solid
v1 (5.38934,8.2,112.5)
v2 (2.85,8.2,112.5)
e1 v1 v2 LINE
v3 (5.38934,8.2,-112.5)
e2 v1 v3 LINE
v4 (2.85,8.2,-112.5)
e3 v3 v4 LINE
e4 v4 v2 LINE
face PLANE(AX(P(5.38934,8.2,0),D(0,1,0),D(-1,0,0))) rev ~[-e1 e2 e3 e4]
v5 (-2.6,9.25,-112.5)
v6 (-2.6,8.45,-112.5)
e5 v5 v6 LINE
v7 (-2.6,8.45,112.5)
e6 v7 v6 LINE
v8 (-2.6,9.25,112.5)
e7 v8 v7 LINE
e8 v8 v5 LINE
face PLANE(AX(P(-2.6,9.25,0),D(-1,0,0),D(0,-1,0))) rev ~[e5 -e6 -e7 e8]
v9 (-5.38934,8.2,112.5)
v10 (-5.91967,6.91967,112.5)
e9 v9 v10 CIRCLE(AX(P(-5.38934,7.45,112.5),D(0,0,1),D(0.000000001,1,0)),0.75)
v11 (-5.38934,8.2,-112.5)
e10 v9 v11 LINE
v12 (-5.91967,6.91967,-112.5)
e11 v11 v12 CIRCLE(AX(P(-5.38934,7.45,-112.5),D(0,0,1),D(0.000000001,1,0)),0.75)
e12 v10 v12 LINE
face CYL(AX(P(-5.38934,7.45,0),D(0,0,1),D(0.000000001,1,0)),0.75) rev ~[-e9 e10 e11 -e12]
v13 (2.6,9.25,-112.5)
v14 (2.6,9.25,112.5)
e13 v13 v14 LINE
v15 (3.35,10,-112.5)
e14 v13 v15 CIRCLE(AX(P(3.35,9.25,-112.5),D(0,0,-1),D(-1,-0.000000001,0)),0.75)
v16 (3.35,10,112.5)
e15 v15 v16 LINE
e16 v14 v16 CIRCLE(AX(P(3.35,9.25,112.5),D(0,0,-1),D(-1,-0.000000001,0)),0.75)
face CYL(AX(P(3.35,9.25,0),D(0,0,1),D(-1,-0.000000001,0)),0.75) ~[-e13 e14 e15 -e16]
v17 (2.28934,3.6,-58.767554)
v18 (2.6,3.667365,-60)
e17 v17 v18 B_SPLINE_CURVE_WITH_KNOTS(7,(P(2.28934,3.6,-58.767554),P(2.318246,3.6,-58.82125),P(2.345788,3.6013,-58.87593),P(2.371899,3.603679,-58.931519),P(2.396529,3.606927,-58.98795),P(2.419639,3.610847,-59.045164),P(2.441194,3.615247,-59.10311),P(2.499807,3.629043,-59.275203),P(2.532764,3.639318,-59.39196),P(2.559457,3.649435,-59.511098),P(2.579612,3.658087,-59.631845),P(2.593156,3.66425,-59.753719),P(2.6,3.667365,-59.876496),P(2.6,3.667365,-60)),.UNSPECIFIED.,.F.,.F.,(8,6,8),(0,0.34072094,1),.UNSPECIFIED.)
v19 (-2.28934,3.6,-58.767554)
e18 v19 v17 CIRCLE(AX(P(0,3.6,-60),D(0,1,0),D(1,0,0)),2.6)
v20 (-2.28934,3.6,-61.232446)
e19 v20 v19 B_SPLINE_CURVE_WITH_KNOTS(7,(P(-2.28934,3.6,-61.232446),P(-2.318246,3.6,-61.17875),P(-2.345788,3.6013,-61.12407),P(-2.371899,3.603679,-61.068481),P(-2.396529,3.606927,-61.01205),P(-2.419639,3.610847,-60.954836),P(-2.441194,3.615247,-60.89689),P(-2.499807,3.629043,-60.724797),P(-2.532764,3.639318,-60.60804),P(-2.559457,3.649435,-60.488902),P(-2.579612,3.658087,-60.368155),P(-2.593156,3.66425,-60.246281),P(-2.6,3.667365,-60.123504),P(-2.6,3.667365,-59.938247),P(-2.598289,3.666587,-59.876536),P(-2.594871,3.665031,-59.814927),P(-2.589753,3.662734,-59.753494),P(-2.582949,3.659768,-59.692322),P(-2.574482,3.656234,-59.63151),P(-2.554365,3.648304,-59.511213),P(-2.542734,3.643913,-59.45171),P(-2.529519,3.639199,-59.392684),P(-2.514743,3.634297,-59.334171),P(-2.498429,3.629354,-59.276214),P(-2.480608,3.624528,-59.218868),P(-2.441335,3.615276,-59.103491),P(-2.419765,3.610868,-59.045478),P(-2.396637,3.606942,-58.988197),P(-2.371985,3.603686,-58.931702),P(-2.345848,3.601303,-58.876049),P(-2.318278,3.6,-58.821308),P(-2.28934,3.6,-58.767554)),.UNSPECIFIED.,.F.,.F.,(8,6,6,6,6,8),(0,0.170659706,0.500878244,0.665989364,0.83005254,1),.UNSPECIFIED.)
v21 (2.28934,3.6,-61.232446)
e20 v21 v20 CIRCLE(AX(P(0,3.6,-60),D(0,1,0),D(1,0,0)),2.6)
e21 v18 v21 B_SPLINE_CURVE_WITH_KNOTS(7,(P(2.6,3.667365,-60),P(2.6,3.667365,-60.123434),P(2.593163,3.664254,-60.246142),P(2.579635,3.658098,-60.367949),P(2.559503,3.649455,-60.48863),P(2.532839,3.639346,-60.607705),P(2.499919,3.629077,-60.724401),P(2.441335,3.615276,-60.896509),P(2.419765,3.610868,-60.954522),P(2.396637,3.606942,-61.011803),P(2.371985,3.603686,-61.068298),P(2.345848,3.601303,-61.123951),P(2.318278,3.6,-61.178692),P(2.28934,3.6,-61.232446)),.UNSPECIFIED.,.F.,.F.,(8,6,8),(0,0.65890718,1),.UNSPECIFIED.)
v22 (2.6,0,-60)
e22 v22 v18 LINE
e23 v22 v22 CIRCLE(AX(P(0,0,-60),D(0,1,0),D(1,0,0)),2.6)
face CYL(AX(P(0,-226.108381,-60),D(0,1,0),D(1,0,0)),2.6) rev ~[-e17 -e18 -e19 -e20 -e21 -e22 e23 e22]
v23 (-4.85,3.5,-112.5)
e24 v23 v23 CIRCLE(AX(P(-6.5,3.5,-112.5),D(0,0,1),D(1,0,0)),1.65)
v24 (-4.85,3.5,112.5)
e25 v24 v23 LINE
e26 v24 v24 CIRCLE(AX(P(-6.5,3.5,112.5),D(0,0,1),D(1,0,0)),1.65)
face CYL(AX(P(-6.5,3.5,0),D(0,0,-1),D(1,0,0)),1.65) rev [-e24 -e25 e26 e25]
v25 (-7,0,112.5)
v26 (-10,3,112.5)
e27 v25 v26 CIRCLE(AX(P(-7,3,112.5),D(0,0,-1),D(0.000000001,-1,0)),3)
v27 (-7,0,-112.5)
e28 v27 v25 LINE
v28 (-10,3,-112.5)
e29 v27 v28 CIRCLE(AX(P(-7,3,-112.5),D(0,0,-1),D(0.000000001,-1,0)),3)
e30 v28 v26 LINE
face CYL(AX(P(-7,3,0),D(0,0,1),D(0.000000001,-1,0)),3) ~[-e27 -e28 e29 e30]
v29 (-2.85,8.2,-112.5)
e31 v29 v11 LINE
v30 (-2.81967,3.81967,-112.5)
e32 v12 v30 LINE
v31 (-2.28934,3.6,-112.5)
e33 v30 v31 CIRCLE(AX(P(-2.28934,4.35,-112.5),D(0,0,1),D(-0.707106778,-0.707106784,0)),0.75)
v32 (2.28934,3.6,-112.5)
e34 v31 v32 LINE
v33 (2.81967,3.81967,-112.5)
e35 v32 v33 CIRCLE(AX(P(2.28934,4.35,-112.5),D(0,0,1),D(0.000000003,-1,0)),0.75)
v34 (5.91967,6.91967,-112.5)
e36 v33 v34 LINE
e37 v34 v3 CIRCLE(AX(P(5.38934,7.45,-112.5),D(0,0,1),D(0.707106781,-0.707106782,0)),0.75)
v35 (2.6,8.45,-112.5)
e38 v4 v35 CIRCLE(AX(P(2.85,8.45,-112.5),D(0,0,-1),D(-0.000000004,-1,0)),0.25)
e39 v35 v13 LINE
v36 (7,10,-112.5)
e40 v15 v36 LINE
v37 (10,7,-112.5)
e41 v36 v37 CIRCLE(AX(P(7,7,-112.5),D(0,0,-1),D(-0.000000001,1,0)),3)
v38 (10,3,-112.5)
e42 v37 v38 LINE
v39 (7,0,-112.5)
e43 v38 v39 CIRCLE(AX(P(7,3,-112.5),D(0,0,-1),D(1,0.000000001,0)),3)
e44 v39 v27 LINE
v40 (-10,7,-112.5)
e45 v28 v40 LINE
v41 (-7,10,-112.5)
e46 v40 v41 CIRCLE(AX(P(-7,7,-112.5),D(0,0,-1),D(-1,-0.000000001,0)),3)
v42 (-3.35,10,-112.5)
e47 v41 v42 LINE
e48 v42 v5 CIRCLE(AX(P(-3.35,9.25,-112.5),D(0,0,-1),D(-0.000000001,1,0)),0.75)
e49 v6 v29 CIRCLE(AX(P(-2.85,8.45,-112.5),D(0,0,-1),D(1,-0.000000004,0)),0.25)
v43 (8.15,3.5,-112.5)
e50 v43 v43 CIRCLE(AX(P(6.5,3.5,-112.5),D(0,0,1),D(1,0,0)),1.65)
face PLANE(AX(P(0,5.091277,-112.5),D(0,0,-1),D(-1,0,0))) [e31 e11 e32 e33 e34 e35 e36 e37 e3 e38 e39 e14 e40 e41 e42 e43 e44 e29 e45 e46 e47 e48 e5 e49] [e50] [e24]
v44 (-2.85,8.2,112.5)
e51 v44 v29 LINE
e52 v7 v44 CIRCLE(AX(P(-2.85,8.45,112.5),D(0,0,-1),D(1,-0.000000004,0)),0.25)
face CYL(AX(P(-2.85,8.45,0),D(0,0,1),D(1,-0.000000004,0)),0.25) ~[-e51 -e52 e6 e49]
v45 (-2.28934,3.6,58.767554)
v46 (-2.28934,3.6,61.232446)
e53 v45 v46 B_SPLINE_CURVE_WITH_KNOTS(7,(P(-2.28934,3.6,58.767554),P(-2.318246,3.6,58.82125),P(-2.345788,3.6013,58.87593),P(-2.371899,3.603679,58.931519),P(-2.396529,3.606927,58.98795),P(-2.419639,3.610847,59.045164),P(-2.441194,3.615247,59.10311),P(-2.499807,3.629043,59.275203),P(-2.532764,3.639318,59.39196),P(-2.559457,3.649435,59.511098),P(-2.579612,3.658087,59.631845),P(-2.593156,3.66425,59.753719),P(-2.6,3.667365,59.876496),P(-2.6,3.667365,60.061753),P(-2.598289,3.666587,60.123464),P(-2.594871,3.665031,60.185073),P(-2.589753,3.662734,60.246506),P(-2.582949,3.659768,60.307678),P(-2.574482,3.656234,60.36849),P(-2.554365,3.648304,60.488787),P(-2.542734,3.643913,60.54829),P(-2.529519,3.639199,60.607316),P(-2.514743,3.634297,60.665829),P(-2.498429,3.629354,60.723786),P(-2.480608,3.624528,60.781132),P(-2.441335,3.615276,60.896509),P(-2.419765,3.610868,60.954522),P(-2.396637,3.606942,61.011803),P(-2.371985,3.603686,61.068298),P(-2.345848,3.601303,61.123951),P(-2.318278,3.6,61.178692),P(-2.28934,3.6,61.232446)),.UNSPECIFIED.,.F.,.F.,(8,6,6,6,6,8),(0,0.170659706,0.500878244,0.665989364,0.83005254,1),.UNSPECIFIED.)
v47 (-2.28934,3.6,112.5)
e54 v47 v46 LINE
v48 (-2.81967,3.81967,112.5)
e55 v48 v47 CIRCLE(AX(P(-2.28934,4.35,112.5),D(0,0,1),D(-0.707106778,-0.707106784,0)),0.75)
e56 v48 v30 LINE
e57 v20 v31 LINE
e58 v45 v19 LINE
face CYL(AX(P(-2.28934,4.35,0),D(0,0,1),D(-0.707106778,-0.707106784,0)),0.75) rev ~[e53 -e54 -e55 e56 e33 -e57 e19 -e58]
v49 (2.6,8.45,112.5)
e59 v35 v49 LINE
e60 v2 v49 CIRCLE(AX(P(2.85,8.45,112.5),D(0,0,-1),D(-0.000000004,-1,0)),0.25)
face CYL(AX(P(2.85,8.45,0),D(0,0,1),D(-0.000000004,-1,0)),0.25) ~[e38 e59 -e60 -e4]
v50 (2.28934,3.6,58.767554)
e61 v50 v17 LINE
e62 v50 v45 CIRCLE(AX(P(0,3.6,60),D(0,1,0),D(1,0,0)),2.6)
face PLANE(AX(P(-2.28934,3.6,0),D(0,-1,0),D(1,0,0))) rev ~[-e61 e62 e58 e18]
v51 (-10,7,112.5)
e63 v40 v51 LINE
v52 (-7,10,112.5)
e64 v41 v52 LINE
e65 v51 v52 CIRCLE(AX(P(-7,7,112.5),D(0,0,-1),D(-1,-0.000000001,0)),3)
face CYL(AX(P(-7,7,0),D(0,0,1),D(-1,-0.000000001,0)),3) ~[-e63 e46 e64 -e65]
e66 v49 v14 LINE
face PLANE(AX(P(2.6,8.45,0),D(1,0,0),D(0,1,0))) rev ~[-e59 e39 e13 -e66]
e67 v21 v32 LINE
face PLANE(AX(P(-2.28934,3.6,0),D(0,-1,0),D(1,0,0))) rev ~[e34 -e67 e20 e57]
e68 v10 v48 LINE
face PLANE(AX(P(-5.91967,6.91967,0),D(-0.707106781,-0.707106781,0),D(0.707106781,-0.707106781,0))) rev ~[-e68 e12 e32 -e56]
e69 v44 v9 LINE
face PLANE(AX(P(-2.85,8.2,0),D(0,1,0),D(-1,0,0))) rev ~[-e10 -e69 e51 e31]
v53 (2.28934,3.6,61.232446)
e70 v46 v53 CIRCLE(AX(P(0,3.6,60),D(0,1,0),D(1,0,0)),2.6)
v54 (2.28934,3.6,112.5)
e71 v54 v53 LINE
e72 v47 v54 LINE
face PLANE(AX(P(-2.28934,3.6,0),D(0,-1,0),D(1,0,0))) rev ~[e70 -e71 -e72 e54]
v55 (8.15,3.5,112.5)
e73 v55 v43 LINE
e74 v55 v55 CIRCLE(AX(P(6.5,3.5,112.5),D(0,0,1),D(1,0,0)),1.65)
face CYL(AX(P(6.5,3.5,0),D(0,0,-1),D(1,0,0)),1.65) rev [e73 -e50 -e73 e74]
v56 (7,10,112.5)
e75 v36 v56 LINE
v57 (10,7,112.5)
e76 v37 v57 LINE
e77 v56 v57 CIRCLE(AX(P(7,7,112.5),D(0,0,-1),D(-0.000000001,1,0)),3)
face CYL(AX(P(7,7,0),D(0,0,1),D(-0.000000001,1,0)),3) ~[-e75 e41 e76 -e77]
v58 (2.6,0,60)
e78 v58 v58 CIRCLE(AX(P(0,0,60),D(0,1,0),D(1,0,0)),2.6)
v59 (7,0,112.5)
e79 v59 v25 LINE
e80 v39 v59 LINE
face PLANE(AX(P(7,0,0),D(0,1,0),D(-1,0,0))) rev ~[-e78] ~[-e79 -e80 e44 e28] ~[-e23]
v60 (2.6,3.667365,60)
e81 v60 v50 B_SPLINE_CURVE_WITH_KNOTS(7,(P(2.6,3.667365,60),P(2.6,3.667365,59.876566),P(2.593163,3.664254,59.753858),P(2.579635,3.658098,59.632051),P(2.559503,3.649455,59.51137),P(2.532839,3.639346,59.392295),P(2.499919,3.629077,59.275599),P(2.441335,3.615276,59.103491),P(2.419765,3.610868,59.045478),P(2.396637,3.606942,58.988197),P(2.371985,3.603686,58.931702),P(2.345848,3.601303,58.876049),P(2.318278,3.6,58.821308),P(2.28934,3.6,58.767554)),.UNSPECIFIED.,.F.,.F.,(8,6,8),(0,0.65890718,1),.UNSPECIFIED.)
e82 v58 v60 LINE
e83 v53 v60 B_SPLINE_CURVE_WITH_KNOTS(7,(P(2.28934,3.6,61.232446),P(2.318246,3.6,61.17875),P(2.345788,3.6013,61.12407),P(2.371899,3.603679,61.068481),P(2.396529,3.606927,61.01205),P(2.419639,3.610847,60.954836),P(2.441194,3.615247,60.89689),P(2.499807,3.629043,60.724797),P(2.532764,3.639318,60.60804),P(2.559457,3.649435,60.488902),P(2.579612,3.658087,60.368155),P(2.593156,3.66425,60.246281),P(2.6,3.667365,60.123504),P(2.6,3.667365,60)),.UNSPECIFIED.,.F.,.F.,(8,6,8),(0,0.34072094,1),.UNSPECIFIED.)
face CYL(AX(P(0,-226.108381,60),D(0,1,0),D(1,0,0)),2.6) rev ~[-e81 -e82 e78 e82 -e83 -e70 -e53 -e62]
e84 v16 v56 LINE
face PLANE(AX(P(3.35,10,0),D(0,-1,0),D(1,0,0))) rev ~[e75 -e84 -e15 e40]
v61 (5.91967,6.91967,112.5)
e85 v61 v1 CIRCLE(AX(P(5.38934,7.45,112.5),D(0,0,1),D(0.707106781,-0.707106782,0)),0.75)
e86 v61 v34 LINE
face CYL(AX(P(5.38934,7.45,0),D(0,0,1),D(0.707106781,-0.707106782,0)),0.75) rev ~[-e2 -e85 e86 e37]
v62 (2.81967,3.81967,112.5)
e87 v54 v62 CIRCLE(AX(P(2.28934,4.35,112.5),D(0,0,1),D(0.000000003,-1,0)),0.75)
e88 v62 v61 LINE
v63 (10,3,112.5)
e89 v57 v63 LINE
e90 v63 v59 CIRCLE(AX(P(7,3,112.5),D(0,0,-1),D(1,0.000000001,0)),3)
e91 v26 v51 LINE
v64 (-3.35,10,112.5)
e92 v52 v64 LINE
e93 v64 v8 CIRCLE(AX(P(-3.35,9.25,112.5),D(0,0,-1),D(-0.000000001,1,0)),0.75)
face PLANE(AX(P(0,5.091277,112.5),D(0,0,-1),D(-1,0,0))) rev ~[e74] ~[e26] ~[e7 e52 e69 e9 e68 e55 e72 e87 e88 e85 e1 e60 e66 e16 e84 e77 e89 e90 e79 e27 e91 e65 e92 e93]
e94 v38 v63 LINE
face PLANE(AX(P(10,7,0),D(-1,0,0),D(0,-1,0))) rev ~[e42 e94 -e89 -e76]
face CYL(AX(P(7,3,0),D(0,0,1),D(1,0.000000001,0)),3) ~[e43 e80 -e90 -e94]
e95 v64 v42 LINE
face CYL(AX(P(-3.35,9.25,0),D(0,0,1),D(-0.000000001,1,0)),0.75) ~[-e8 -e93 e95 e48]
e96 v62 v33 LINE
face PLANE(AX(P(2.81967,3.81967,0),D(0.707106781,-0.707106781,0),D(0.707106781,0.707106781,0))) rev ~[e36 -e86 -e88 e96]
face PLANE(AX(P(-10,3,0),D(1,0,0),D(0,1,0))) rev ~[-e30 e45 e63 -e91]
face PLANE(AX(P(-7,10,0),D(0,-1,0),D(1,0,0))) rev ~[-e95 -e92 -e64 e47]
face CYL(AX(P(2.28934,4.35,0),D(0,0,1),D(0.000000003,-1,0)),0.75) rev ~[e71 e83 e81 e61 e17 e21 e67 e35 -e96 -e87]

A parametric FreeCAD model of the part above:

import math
import FreeCAD as App
import Part
import Sketcher
Q = App.Units.Quantity

doc = App.newDocument("Part")
body = doc.addObject("PartDesign::Body", "Body")

# Sketch on XY plane
sketch1 = body.newObject("Sketcher::SketchObject", "Sketch")
sketch1.AttachmentSupport = (doc.getObject("XY_Plane"), [""])
sketch1.MapMode = "FlatFace"
sketch1.addGeometry([
    Part.LineSegment(App.Vector(-3.35, 10, 0), App.Vector(-7, 10, 0)),  # 0
    Part.ArcOfCircle(Part.Circle(App.Vector(-7, 7, 0), App.Vector(0, 0, 1), 3), math.radians(90), math.radians(180)),  # 1
    Part.LineSegment(App.Vector(-10, 7, 0), App.Vector(-10, 3, 0)),  # 2
    Part.ArcOfCircle(Part.Circle(App.Vector(-7, 3, 0), App.Vector(0, 0, 1), 3), math.radians(180), math.radians(270)),  # 3
    Part.LineSegment(App.Vector(-7, 0, 0), App.Vector(7, 0, 0)),  # 4
    Part.ArcOfCircle(Part.Circle(App.Vector(7, 3, 0), App.Vector(0, 0, 1), 3), math.radians(-90), math.radians(0)),  # 5
    Part.LineSegment(App.Vector(10, 3, 0), App.Vector(10, 7, 0)),  # 6
    Part.ArcOfCircle(Part.Circle(App.Vector(7, 7, 0), App.Vector(0, 0, 1), 3), math.radians(0), math.radians(90)),  # 7
    Part.LineSegment(App.Vector(7, 10, 0), App.Vector(3.35, 10, 0)),  # 8
    Part.ArcOfCircle(Part.Circle(App.Vector(3.35, 9.25, 0), App.Vector(0, 0, 1), 0.75), math.radians(90), math.radians(180)),  # 9
    Part.LineSegment(App.Vector(2.6, 9.25, 0), App.Vector(2.6, 8.45, 0)),  # 10
    Part.ArcOfCircle(Part.Circle(App.Vector(2.85, 8.45, 0), App.Vector(0, 0, 1), 0.25), math.radians(-180), math.radians(-90)),  # 11
    Part.LineSegment(App.Vector(2.85, 8.2, 0), App.Vector(5.39, 8.2, 0)),  # 12
    Part.ArcOfCircle(Part.Circle(App.Vector(5.39, 7.45, 0), App.Vector(0, 0, 1), 0.75), math.radians(-45), math.radians(90)),  # 13
    Part.LineSegment(App.Vector(5.92, 6.92, 0), App.Vector(2.82, 3.82, 0)),  # 14
    Part.ArcOfCircle(Part.Circle(App.Vector(2.29, 4.35, 0), App.Vector(0, 0, 1), 0.75), math.radians(-90), math.radians(-45)),  # 15
    Part.LineSegment(App.Vector(2.29, 3.6, 0), App.Vector(-2.29, 3.6, 0)),  # 16
    Part.ArcOfCircle(Part.Circle(App.Vector(-2.29, 4.35, 0), App.Vector(0, 0, 1), 0.75), math.radians(-135), math.radians(-90)),  # 17
    Part.LineSegment(App.Vector(-2.82, 3.82, 0), App.Vector(-5.92, 6.92, 0)),  # 18
    Part.ArcOfCircle(Part.Circle(App.Vector(-5.39, 7.45, 0), App.Vector(0, 0, 1), 0.75), math.radians(90), math.radians(225)),  # 19
    Part.LineSegment(App.Vector(-5.39, 8.2, 0), App.Vector(-2.85, 8.2, 0)),  # 20
    Part.ArcOfCircle(Part.Circle(App.Vector(-2.85, 8.45, 0), App.Vector(0, 0, 1), 0.25), math.radians(-90), math.radians(0)),  # 21
    Part.LineSegment(App.Vector(-2.6, 8.45, 0), App.Vector(-2.6, 9.25, 0)),  # 22
    Part.ArcOfCircle(Part.Circle(App.Vector(-3.35, 9.25, 0), App.Vector(0, 0, 1), 0.75), math.radians(0), math.radians(90)),  # 23
    Part.Circle(App.Vector(6.5, 3.5, 0), App.Vector(0, 0, 1), 1.65),  # 24
    Part.Circle(App.Vector(-6.5, 3.5, 0), App.Vector(0, 0, 1), 1.65),  # 25
], False)
sketch1.addConstraint([
    Sketcher.Constraint("Tangent", 0, 2, 1, 1),
    Sketcher.Constraint("Tangent", 1, 2, 2, 1),
    Sketcher.Constraint("Tangent", 2, 2, 3, 1),
    Sketcher.Constraint("Tangent", 3, 2, 4, 1),
    Sketcher.Constraint("Tangent", 4, 2, 5, 1),
    Sketcher.Constraint("Tangent", 5, 2, 6, 1),
    Sketcher.Constraint("Tangent", 6, 2, 7, 1),
    Sketcher.Constraint("Tangent", 7, 2, 8, 1),
    Sketcher.Constraint("Tangent", 8, 2, 9, 1),
    Sketcher.Constraint("Tangent", 9, 2, 10, 1),
    Sketcher.Constraint("Tangent", 10, 2, 11, 1),
    Sketcher.Constraint("Tangent", 11, 2, 12, 1),
    Sketcher.Constraint("Tangent", 12, 2, 13, 2),
    Sketcher.Constraint("Tangent", 13, 1, 14, 1),
    Sketcher.Constraint("Tangent", 14, 2, 15, 2),
    Sketcher.Constraint("Tangent", 15, 1, 16, 1),
    Sketcher.Constraint("Tangent", 16, 2, 17, 2),
    Sketcher.Constraint("Tangent", 17, 1, 18, 1),
    Sketcher.Constraint("Tangent", 18, 2, 19, 2),
    Sketcher.Constraint("Tangent", 19, 1, 20, 1),
    Sketcher.Constraint("Tangent", 20, 2, 21, 1),
    Sketcher.Constraint("Tangent", 21, 2, 22, 1),
    Sketcher.Constraint("Tangent", 22, 2, 23, 1),
    Sketcher.Constraint("Tangent", 23, 2, 0, 1),
    Sketcher.Constraint("Horizontal", 0),
    Sketcher.Constraint("Vertical", 2),
    Sketcher.Constraint("Horizontal", 4),
    Sketcher.Constraint("Vertical", 6),
    Sketcher.Constraint("Horizontal", 8),
    Sketcher.Constraint("Vertical", 10),
    Sketcher.Constraint("Horizontal", 12),
    Sketcher.Constraint("Horizontal", 16),
    Sketcher.Constraint("Horizontal", 20),
    Sketcher.Constraint("Vertical", 22),
    Sketcher.Constraint("Equal", 1, 3),
    Sketcher.Constraint("Equal", 3, 5),
    Sketcher.Constraint("Equal", 5, 7),
    Sketcher.Constraint("Equal", 9, 13),
    Sketcher.Constraint("Equal", 13, 15),
    Sketcher.Constraint("Equal", 15, 17),
    Sketcher.Constraint("Equal", 17, 19),
    Sketcher.Constraint("Equal", 11, 21),
    Sketcher.Constraint("Equal", 19, 23),
    Sketcher.Constraint("Equal", 24, 25),
    Sketcher.Constraint("Symmetric", 3, 2, 4, 2, -1, 1),
    Sketcher.Constraint("Symmetric", 13, 3, 19, 3, -2),
    Sketcher.Constraint("Symmetric", 9, 3, 23, 3, -2),
    Sketcher.Constraint("Symmetric", 24, 3, 25, 3, -2),
    Sketcher.Constraint("Perpendicular", 14, 18),
    Sketcher.Constraint("Horizontal", 14, 2, 17, 1),
    Sketcher.Constraint("Radius", 1, Q("3 mm")),
    Sketcher.Constraint("Diameter", 24, Q("3.3 mm")),
    Sketcher.Constraint("DistanceX", 4, 1, 4, 2, Q("14 mm")),
    Sketcher.Constraint("DistanceY", 2, 2, 2, 1, Q("4 mm")),
    Sketcher.Constraint("Radius", 9, Q("0.75 mm")),
    Sketcher.Constraint("Radius", 11, Q("0.25 mm")),
    Sketcher.Constraint("DistanceY", 10, 2, 10, 1, Q("0.8 mm")),
    Sketcher.Constraint("DistanceX", 0, 2, 0, 1, Q("3.65 mm")),
    Sketcher.Constraint("DistanceX", -1, 1, 24, 3, Q("6.5 mm")),
    Sketcher.Constraint("DistanceY", -1, 1, 24, 3, Q("3.5 mm")),
    Sketcher.Constraint("DistanceY", -1, 1, 15, 1, Q("3.6 mm")),
    Sketcher.Constraint("DistanceX", 12, 1, 12, 2, Q("2.53934 mm")),
])
pad1 = body.newObject("PartDesign::Pad", "Pad")
pad1.Profile = sketch1
pad1.Length = 225
pad1.Midplane = True

# Sketch on XZ plane
sketch2 = body.newObject("Sketcher::SketchObject", "Sketch001")
sketch2.AttachmentSupport = (doc.getObject("XZ_Plane"), [""])
sketch2.MapMode = "FlatFace"
sketch2.addGeometry([
    Part.Circle(App.Vector(0, -60, 0), App.Vector(0, 0, 1), 2.6),
    Part.Circle(App.Vector(0, 60, 0), App.Vector(0, 0, 1), 2.6),
], False)
sketch2.addConstraint([
    Sketcher.Constraint("Equal", 0, 1),
    Sketcher.Constraint("Symmetric", 0, 3, 1, 3, -1, 1),
    Sketcher.Constraint("PointOnObject", 0, 3, -2),
    Sketcher.Constraint("Diameter", 0, Q("5.2 mm")),
    Sketcher.Constraint("DistanceY", 0, 3, -1, 1, Q("60 mm")),
])
doc.recompute()
hole = body.newObject("PartDesign::Hole", "Hole")
hole.Profile = sketch2
hole.ThreadType = "None"
hole.Diameter = 5.2
hole.DepthType = "ThroughAll"

doc.recompute()
